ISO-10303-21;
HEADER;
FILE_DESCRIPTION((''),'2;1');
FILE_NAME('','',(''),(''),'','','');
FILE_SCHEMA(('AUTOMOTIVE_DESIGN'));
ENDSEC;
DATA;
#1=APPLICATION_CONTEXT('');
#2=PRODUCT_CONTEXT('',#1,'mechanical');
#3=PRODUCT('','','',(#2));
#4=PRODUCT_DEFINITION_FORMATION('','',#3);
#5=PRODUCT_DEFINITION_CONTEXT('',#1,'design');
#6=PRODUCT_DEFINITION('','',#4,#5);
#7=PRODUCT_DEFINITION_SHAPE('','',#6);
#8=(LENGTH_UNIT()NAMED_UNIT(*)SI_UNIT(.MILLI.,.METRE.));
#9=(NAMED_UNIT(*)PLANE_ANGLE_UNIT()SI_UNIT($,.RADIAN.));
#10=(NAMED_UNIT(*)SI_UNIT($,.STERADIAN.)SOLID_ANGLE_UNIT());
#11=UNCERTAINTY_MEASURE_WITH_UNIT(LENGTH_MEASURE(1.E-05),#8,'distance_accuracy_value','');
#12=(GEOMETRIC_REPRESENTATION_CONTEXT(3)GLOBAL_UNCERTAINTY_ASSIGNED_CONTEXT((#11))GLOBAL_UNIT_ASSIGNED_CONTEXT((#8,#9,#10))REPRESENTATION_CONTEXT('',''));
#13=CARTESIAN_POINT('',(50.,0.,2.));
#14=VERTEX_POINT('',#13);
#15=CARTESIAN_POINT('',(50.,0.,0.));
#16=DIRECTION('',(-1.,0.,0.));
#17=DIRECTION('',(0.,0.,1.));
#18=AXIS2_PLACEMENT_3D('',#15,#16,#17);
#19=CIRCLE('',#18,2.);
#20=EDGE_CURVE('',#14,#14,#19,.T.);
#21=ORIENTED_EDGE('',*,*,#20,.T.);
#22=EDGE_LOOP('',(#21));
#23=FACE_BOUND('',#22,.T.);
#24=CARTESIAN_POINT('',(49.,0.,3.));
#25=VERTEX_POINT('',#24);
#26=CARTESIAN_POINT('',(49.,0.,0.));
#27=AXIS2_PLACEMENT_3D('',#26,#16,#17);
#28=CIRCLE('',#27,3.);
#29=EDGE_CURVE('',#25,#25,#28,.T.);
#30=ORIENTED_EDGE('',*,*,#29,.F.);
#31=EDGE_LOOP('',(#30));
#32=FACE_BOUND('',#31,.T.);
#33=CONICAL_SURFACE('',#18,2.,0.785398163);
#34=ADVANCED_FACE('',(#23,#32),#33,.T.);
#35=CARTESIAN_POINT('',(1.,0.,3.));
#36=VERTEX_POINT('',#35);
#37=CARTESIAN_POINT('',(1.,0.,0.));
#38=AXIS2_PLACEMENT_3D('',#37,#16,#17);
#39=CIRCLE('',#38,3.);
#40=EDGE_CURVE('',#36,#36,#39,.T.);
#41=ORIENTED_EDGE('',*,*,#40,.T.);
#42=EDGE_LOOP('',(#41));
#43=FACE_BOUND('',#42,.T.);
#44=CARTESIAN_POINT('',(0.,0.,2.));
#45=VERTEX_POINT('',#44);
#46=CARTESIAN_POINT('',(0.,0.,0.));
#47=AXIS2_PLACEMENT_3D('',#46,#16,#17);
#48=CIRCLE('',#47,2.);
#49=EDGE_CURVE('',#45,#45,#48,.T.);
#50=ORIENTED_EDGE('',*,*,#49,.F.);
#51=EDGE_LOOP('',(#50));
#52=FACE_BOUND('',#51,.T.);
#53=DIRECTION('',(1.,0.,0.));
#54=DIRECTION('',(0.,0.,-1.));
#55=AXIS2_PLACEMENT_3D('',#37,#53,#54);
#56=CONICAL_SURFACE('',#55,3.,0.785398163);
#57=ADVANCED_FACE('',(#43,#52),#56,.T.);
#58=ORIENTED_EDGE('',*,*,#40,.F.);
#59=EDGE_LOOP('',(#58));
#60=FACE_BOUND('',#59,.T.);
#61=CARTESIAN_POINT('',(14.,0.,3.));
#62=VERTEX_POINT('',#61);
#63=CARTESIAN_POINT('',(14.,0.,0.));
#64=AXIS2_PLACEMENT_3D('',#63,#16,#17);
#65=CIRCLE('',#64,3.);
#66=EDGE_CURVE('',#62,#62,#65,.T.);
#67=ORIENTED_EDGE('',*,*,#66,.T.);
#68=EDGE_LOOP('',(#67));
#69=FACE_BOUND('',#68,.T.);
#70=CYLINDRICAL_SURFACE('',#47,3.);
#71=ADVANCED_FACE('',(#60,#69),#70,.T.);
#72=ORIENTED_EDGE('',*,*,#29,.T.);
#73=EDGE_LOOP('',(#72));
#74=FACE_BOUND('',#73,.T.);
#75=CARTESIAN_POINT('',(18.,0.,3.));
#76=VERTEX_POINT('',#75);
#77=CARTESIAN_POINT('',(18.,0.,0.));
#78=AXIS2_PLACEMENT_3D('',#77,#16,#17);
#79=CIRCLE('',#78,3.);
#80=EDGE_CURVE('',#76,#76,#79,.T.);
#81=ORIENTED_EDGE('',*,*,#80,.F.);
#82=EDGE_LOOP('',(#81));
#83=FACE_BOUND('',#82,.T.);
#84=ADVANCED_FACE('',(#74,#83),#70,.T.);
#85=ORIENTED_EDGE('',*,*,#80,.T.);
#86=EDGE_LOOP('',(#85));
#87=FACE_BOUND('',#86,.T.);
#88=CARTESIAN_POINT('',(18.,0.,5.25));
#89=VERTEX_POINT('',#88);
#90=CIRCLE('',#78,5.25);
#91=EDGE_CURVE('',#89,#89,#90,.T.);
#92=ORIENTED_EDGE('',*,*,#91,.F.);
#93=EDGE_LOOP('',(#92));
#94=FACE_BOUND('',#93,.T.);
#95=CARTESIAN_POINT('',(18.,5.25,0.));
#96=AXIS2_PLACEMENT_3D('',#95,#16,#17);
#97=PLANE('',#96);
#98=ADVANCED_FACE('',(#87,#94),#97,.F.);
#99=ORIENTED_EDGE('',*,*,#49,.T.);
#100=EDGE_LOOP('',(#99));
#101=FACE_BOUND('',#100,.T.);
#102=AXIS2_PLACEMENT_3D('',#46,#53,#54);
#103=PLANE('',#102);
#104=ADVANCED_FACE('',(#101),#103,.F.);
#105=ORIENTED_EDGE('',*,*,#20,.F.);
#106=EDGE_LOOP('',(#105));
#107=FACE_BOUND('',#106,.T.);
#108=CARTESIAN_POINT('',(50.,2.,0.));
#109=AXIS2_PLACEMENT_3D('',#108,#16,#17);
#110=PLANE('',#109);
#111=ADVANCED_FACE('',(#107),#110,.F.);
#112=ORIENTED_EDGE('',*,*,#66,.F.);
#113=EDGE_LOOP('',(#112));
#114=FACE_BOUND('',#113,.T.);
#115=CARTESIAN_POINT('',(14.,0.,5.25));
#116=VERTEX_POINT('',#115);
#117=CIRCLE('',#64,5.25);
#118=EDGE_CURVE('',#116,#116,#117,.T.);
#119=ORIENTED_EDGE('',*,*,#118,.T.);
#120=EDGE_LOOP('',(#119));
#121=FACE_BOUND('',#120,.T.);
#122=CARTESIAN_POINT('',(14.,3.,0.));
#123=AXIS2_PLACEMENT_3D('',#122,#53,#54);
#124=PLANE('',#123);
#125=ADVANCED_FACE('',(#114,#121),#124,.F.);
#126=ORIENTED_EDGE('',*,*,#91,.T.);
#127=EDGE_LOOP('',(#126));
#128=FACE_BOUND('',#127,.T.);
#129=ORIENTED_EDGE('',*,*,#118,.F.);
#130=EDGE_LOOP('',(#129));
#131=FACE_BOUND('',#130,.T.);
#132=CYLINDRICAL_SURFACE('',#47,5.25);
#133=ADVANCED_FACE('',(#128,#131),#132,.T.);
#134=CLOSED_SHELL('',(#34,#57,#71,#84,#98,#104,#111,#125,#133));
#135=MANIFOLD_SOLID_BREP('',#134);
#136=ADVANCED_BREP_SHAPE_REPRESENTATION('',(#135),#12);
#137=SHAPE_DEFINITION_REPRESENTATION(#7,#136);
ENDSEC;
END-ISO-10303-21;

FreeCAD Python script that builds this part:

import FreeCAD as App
import Part
import Sketcher

doc = App.newDocument("Part")
params = doc.addObject("Spreadsheet::Sheet", "Params")
for row, (alias, value) in enumerate([
    ("sketch1_width", "50 mm"),
    ("sketch1_width2", "31 mm"),
    ("sketch1_width3", "4 mm"),
    ("sketch1_width4", "13 mm"),
    ("sketch1_height", "2 mm"),
    ("revolution_angle", "360 deg"),
], start=1):
    params.set(f"A{row}", alias)
    params.set(f"B{row}", "=" + value)
    params.setAlias(f"B{row}", alias)

body = doc.addObject("PartDesign::Body", "Body")

sketch1 = body.newObject("Sketcher::SketchObject", "Sketch")
sketch1.AttachmentSupport = (doc.getObject("XY_Plane"), [""])
sketch1.MapMode = "FlatFace"
sketch1.addGeometry(Part.LineSegment(App.Vector(0, 2, 0), App.Vector(0, 0, 0)), False)
sketch1.addGeometry(Part.LineSegment(App.Vector(0, 0, 0), App.Vector(50, 0, 0)), False)
sketch1.addGeometry(Part.LineSegment(App.Vector(50, 0, 0), App.Vector(50, 2, 0)), False)
sketch1.addGeometry(Part.LineSegment(App.Vector(50, 2, 0), App.Vector(49, 3, 0)), False)
sketch1.addGeometry(Part.LineSegment(App.Vector(49, 3, 0), App.Vector(18, 3, 0)), False)
sketch1.addGeometry(Part.LineSegment(App.Vector(18, 3, 0), App.Vector(18, 5.2, 0)), False)
sketch1.addGeometry(Part.LineSegment(App.Vector(18, 5.2, 0), App.Vector(14, 5.2, 0)), False)
sketch1.addGeometry(Part.LineSegment(App.Vector(14, 5.2, 0), App.Vector(14, 3, 0)), False)
sketch1.addGeometry(Part.LineSegment(App.Vector(14, 3, 0), App.Vector(1, 3, 0)), False)
sketch1.addGeometry(Part.LineSegment(App.Vector(1, 3, 0), App.Vector(0, 2, 0)), False)
sketch1.addConstraint(Sketcher.Constraint("Coincident", 0, 2, 1, 1))
sketch1.addConstraint(Sketcher.Constraint("Coincident", 1, 2, 2, 1))
sketch1.addConstraint(Sketcher.Constraint("Coincident", 2, 2, 3, 1))
sketch1.addConstraint(Sketcher.Constraint("Coincident", 3, 2, 4, 1))
sketch1.addConstraint(Sketcher.Constraint("Coincident", 4, 2, 5, 1))
sketch1.addConstraint(Sketcher.Constraint("Coincident", 5, 2, 6, 1))
sketch1.addConstraint(Sketcher.Constraint("Coincident", 6, 2, 7, 1))
sketch1.addConstraint(Sketcher.Constraint("Coincident", 7, 2, 8, 1))
sketch1.addConstraint(Sketcher.Constraint("Coincident", 8, 2, 9, 1))
sketch1.addConstraint(Sketcher.Constraint("Coincident", 9, 2, 0, 1))
sketch1.addConstraint(Sketcher.Constraint("Vertical", 0))
sketch1.addConstraint(Sketcher.Constraint("Horizontal", 1))
sketch1.addConstraint(Sketcher.Constraint("Vertical", 2))
sketch1.addConstraint(Sketcher.Constraint("Horizontal", 4))
sketch1.addConstraint(Sketcher.Constraint("Vertical", 5))
sketch1.addConstraint(Sketcher.Constraint("Horizontal", 6))
sketch1.addConstraint(Sketcher.Constraint("Vertical", 7))
sketch1.addConstraint(Sketcher.Constraint("Horizontal", 8))
sketch1.addConstraint(Sketcher.Constraint("Coincident", 0, 2, -1, 1))
sketch1.addConstraint(Sketcher.Constraint("Perpendicular", 3, 9))
sketch1.addConstraint(Sketcher.Constraint("Horizontal", 4, 2, 7, 2))
sketch1.addConstraint(Sketcher.Constraint("Horizontal", 2, 2, 9, 2))
sketch1.addConstraint(Sketcher.Constraint("Equal", 3, 9))
sketch1.addConstraint(Sketcher.Constraint("DistanceX", 1, 1, 1, 2, 50.0))
sketch1.addConstraint(Sketcher.Constraint("DistanceX", 4, 2, 4, 1, 31.0))
sketch1.addConstraint(Sketcher.Constraint("DistanceX", 6, 2, 6, 1, 4.0))
sketch1.addConstraint(Sketcher.Constraint("DistanceX", 8, 2, 8, 1, 13.0))
sketch1.addConstraint(Sketcher.Constraint("DistanceY", 0, 2, 0, 1, 2.0))
sketch1.addConstraint(Sketcher.Constraint("DistanceY", 5, 1, 5, 2, 2.25))
sketch1.setExpression("Constraints[23]", "Params.sketch1_width")
sketch1.setExpression("Constraints[24]", "Params.sketch1_width2")
sketch1.setExpression("Constraints[25]", "Params.sketch1_width3")
sketch1.setExpression("Constraints[26]", "Params.sketch1_width4")
sketch1.setExpression("Constraints[27]", "Params.sketch1_height")
revolution = body.newObject("PartDesign::Revolution", "Revolution")
revolution.Profile = sketch1
revolution.ReferenceAxis = (sketch1, ["H_Axis"])
revolution.setExpression("Angle", "Params.revolution_angle")

doc.recompute()
